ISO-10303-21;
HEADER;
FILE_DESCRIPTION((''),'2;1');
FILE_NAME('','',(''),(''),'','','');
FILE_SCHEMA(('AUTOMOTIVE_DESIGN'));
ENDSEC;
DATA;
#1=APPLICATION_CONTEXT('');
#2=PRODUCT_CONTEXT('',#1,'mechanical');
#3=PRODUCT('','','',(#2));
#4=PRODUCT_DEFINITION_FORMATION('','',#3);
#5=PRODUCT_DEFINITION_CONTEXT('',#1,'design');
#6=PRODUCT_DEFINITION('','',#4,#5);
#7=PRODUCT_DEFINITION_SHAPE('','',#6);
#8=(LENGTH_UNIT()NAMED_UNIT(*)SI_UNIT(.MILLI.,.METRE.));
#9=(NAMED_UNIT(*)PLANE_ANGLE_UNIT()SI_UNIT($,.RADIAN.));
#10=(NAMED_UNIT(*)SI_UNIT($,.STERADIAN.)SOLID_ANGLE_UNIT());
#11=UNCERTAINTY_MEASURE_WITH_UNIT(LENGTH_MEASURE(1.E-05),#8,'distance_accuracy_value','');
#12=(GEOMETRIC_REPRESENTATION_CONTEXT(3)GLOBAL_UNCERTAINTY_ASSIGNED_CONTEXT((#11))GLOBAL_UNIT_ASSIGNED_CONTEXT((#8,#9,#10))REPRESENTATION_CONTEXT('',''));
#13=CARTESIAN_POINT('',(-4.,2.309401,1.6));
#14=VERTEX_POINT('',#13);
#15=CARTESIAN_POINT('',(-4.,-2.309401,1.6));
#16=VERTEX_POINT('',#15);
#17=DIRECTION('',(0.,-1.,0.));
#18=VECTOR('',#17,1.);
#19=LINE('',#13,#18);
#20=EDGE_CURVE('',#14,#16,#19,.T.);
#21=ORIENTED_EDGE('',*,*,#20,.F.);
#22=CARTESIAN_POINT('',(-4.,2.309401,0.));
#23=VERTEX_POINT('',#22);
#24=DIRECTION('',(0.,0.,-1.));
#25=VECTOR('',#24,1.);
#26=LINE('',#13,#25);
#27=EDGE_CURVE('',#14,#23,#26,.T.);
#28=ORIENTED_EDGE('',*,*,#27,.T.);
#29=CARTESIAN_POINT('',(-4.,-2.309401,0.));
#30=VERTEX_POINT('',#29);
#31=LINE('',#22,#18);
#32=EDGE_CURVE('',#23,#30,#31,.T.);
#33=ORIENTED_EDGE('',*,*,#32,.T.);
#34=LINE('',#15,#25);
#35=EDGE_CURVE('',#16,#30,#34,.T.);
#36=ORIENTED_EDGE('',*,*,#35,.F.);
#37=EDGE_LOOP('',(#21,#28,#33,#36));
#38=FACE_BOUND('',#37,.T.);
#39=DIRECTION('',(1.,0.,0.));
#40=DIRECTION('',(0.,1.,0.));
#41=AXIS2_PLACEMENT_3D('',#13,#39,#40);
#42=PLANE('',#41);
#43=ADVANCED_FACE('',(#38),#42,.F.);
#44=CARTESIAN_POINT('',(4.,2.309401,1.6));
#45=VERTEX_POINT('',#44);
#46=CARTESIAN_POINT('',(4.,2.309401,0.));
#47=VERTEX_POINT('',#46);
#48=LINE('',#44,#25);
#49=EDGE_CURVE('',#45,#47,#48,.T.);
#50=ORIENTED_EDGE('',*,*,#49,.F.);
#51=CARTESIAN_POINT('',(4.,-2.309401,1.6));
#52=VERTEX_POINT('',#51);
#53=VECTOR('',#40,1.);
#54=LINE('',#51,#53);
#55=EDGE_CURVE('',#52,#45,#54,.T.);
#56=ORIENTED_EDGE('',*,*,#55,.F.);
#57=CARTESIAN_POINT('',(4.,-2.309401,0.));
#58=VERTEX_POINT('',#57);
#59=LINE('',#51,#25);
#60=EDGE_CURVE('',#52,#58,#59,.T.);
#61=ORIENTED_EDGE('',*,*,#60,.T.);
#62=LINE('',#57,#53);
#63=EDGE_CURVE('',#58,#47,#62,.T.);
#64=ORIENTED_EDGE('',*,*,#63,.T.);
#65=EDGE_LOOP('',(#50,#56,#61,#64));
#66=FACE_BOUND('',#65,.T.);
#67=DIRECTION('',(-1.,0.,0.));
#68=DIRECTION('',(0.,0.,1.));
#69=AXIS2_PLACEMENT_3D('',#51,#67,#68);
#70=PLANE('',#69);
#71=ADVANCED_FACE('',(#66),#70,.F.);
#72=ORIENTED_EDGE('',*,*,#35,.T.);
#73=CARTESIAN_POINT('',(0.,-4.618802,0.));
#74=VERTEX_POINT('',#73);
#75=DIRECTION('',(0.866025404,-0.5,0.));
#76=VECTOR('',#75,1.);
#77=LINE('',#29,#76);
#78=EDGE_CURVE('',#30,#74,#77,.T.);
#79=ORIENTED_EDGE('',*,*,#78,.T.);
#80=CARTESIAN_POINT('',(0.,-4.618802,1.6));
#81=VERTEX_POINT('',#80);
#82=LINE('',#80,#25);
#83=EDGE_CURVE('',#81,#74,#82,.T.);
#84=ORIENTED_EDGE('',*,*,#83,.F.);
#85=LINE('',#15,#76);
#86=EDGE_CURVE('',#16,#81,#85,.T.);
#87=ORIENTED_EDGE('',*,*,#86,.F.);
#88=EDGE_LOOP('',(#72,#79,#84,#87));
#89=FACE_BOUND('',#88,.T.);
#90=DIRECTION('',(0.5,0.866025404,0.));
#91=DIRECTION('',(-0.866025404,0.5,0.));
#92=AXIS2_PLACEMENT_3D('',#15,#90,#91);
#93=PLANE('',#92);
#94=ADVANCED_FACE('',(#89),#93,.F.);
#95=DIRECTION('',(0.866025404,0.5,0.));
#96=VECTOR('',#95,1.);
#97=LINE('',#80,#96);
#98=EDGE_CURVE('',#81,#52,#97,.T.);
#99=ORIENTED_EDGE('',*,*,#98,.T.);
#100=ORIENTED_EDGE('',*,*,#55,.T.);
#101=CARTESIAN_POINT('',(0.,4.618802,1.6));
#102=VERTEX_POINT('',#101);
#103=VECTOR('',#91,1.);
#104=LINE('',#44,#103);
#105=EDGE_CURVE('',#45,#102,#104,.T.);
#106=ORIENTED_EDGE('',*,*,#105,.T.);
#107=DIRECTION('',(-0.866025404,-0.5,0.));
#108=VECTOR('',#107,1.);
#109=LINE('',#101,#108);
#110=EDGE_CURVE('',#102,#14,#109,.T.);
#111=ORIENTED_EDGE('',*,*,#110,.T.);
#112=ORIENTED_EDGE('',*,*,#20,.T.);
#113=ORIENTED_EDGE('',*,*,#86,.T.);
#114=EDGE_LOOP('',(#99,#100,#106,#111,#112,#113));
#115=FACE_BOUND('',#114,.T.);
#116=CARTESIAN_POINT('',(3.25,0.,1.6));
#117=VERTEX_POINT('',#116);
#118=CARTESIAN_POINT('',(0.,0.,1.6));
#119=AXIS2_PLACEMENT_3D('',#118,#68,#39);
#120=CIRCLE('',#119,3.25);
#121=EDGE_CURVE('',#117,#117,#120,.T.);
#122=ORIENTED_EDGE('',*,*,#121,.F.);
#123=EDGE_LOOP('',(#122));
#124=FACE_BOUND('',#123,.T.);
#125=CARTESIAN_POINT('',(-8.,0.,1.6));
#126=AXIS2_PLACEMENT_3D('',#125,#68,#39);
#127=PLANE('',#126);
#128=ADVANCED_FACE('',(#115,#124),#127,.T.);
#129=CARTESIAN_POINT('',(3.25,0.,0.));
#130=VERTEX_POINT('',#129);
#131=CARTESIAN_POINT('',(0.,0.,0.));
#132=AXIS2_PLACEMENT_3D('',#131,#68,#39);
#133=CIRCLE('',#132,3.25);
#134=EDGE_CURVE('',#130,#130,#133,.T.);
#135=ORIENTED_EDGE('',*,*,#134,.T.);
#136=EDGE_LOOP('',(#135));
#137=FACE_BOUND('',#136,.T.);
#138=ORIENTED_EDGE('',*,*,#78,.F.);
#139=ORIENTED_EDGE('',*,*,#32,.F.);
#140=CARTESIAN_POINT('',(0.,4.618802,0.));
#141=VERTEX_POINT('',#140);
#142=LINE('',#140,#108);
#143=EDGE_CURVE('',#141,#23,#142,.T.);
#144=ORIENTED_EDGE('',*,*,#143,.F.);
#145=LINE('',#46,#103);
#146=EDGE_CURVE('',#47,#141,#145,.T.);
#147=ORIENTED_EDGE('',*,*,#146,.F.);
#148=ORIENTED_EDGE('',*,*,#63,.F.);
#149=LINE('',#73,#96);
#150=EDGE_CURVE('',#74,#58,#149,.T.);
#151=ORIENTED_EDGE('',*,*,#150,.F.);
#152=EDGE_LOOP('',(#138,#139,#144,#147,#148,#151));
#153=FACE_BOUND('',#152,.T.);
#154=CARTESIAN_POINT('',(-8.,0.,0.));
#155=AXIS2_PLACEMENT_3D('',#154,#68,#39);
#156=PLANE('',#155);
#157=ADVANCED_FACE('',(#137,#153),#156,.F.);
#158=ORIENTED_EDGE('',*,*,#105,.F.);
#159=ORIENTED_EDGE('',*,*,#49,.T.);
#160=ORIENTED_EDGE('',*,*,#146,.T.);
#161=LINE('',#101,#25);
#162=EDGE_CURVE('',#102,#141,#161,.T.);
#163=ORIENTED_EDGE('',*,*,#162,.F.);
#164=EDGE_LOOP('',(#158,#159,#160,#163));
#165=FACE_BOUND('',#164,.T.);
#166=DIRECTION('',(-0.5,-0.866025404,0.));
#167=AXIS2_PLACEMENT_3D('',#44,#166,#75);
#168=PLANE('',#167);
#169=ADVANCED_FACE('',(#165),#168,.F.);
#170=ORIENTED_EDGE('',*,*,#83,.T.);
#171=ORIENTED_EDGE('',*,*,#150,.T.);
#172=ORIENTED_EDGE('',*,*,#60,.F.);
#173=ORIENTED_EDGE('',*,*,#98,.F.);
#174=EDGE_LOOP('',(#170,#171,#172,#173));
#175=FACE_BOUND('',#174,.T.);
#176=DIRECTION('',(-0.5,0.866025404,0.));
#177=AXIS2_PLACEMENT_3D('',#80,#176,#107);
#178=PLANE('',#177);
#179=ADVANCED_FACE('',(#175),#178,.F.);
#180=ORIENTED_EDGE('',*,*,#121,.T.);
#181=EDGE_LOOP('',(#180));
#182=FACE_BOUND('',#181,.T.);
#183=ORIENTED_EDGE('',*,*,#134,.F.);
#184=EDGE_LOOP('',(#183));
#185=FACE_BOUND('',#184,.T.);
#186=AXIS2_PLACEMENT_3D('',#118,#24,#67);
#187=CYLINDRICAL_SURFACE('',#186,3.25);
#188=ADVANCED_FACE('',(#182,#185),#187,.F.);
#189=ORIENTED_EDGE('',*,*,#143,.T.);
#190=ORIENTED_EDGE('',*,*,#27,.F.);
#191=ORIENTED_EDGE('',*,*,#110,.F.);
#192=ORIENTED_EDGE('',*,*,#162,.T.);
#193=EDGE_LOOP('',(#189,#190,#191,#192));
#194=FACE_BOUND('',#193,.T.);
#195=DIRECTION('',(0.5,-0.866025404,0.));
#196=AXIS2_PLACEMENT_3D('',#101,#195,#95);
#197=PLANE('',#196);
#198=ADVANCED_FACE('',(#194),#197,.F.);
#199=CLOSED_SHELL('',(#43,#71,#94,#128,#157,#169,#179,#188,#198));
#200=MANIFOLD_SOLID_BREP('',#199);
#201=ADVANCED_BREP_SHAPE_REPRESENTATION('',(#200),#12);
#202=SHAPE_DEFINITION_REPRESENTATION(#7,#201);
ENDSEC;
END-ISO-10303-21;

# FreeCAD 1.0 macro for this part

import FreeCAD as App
import Part
import Sketcher
Q = App.Units.Quantity

doc = App.newDocument("Part")
body = doc.addObject("PartDesign::Body", "Body")

# Sketch on XY plane
sketch1 = body.newObject("Sketcher::SketchObject", "Sketch")
sketch1.AttachmentSupport = (doc.getObject("XY_Plane"), [""])
sketch1.MapMode = "FlatFace"
sketch1.addGeometry([
    Part.LineSegment(App.Vector(-4, 2.3, 0), App.Vector(-4, -2.3, 0)),  # 0
    Part.LineSegment(App.Vector(-4, -2.3, 0), App.Vector(0, -4.6, 0)),  # 1
    Part.LineSegment(App.Vector(0, -4.6, 0), App.Vector(4, -2.3, 0)),  # 2
    Part.LineSegment(App.Vector(4, -2.3, 0), App.Vector(4, 2.3, 0)),  # 3
    Part.LineSegment(App.Vector(4, 2.3, 0), App.Vector(0, 4.6, 0)),  # 4
    Part.LineSegment(App.Vector(0, 4.6, 0), App.Vector(-4, 2.3, 0)),  # 5
    Part.Circle(App.Vector(0, 0, 0), App.Vector(0, 0, 1), 3.2),  # 6
], False)
sketch1.addConstraint([
    Sketcher.Constraint("Coincident", 0, 2, 1, 1),
    Sketcher.Constraint("Coincident", 1, 2, 2, 1),
    Sketcher.Constraint("Coincident", 2, 2, 3, 1),
    Sketcher.Constraint("Coincident", 3, 2, 4, 1),
    Sketcher.Constraint("Coincident", 4, 2, 5, 1),
    Sketcher.Constraint("Coincident", 5, 2, 0, 1),
    Sketcher.Constraint("Vertical", 0),
    Sketcher.Constraint("Vertical", 3),
    Sketcher.Constraint("Coincident", 6, 3, -1, 1),
    Sketcher.Constraint("Symmetric", 0, 2, 3, 2, -1, 1),
    Sketcher.Constraint("Symmetric", 1, 2, 4, 2, -1, 1),
    Sketcher.Constraint("PointOnObject", 1, 2, -2),
    Sketcher.Constraint("Parallel", 2, 5),
    Sketcher.Constraint("Horizontal", 0, 2, 2, 2),
    Sketcher.Constraint("Diameter", 6, 6.5),
    Sketcher.Constraint("Angle", 1, Q("-30 deg")),
    Sketcher.Constraint("DistanceX", 0, 2, -1, 1, 4.0),
    Sketcher.Constraint("DistanceY", 0, 2, -1, 1, 2.309401),
])
pad1 = body.newObject("PartDesign::Pad", "Pad")
pad1.Profile = sketch1
pad1.Length = 1.6

doc.recompute()
